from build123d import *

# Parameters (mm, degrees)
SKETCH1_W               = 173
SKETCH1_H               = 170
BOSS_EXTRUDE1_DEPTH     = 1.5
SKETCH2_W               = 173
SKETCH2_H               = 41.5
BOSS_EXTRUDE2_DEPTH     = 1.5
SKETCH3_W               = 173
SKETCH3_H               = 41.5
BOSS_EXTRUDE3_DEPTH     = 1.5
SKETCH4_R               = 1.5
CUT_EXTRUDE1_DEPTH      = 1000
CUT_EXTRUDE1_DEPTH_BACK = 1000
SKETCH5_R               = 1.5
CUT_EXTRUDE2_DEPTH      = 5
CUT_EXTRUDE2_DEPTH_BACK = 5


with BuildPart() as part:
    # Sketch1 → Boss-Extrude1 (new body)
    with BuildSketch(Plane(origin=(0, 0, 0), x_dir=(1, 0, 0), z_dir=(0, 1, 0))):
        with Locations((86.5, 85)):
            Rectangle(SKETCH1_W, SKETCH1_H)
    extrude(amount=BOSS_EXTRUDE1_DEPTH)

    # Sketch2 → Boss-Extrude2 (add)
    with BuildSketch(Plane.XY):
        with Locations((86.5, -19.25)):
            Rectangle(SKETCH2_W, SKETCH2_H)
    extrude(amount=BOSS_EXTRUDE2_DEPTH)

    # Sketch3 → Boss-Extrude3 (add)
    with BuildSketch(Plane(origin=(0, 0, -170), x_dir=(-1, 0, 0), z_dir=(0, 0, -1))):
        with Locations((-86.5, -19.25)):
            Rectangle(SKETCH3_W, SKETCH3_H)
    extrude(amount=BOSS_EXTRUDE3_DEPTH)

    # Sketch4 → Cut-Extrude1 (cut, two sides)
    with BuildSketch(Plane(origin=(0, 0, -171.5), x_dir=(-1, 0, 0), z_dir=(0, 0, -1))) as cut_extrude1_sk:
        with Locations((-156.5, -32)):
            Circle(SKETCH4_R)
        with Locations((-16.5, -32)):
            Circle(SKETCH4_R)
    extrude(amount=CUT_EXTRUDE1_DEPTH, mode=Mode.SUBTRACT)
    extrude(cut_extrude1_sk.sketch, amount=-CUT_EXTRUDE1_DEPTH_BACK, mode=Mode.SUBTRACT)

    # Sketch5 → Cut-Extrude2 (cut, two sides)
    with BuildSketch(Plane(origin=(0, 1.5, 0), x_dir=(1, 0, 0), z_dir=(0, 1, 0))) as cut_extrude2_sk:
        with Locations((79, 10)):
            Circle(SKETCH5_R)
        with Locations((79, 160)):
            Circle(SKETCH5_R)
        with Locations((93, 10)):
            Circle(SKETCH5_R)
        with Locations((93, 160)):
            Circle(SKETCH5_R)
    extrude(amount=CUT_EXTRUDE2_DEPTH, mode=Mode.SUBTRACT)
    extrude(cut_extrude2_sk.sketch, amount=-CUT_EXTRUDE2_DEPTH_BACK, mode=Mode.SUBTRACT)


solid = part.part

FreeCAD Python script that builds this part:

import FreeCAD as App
import Part
import Sketcher


def add_polygon(sketch, points):
    """Adds a closed chain of lines whose ends are joined by coincident constraints."""
    first, n = sketch.GeometryCount, len(points)
    for a, b in zip(points, points[1:] + points[:1]):
        sketch.addGeometry(Part.LineSegment(App.Vector(*a, 0), App.Vector(*b, 0)), False)
    for i in range(n):
        sketch.addConstraint(Sketcher.Constraint("Coincident", first + i, 2, first + (i + 1) % n, 1))

doc = App.newDocument("Part")
params = doc.addObject("Spreadsheet::Sheet", "Params")
for row, (alias, value) in enumerate([
    ("sketch1_width", "173 mm"),
    ("sketch1_height", "170 mm"),
    ("pad1_length", "1.5 mm"),
    ("sketch2_width", "173 mm"),
    ("sketch2_height", "41.5 mm"),
    ("pad2_length", "1.5 mm"),
    ("sketch3_width", "173 mm"),
    ("sketch3_height", "41.5 mm"),
    ("pad3_length", "1.5 mm"),
    ("sketch4_diameter", "3 mm"),
    ("sketch5_diameter", "3 mm"),
], start=1):
    params.set(f"A{row}", alias)
    params.set(f"B{row}", "=" + value)
    params.setAlias(f"B{row}", alias)

body = doc.addObject("PartDesign::Body", "Body")

sketch1 = body.newObject("Sketcher::SketchObject", "Sketch")
sketch1.AttachmentSupport = (doc.getObject("XZ_Plane"), [""])
sketch1.MapMode = "FlatFace"
add_polygon(sketch1, [(0, -170), (0, 0), (173, 0), (173, -170)])
sketch1.addConstraint([
    Sketcher.Constraint("Vertical", 0),
    Sketcher.Constraint("Horizontal", 1),
    Sketcher.Constraint("Vertical", 2),
    Sketcher.Constraint("Horizontal", 3),
    Sketcher.Constraint("Coincident", 0, 2, -1, 1),
    Sketcher.Constraint("DistanceX", 1, 1, 1, 2, 173.0),
    Sketcher.Constraint("DistanceY", 0, 1, 0, 2, 170.0),
])
sketch1.setExpression("Constraints[9]", "Params.sketch1_width")
sketch1.setExpression("Constraints[10]", "Params.sketch1_height")
pad1 = body.newObject("PartDesign::Pad", "Pad")
pad1.Profile = sketch1
pad1.setExpression("Length", "Params.pad1_length")
pad1.Reversed = True

sketch2 = body.newObject("Sketcher::SketchObject", "Sketch001")
sketch2.AttachmentSupport = (doc.getObject("XY_Plane"), [""])
sketch2.MapMode = "FlatFace"
add_polygon(sketch2, [(0, 1.5), (0, -40), (173, -40), (173, 1.5)])
sketch2.addConstraint([
    Sketcher.Constraint("Vertical", 0),
    Sketcher.Constraint("Horizontal", 1),
    Sketcher.Constraint("Vertical", 2),
    Sketcher.Constraint("Horizontal", 3),
    Sketcher.Constraint("PointOnObject", 0, 2, -2),
    Sketcher.Constraint("DistanceX", 1, 1, 1, 2, 173.0),
    Sketcher.Constraint("DistanceY", 0, 2, 0, 1, 41.5),
    Sketcher.Constraint("DistanceY", 0, 2, -1, 1, 40.0),
])
sketch2.setExpression("Constraints[9]", "Params.sketch2_width")
sketch2.setExpression("Constraints[10]", "Params.sketch2_height")
pad2 = body.newObject("PartDesign::Pad", "Pad001")
pad2.Profile = sketch2
pad2.setExpression("Length", "Params.pad2_length")

sketch3 = body.newObject("Sketcher::SketchObject", "Sketch002")
sketch3.AttachmentSupport = (doc.getObject("XY_Plane"), [""])
sketch3.MapMode = "FlatFace"
sketch3.AttachmentOffset = App.Placement(App.Vector(0, 0, -170), App.Rotation())
add_polygon(sketch3, [(173, 1.5), (173, -40), (0, -40), (0, 1.5)])
sketch3.addConstraint([
    Sketcher.Constraint("Vertical", 0),
    Sketcher.Constraint("Horizontal", 1),
    Sketcher.Constraint("Vertical", 2),
    Sketcher.Constraint("Horizontal", 3),
    Sketcher.Constraint("PointOnObject", 1, 2, -2),
    Sketcher.Constraint("DistanceX", 1, 2, 1, 1, 173.0),
    Sketcher.Constraint("DistanceY", 0, 2, 0, 1, 41.5),
    Sketcher.Constraint("DistanceY", 0, 2, -1, 1, 40.0),
])
sketch3.setExpression("Constraints[9]", "Params.sketch3_width")
sketch3.setExpression("Constraints[10]", "Params.sketch3_height")
pad3 = body.newObject("PartDesign::Pad", "Pad002")
pad3.Profile = sketch3
pad3.setExpression("Length", "Params.pad3_length")
pad3.Reversed = True

sketch4 = body.newObject("Sketcher::SketchObject", "Sketch003")
sketch4.AttachmentSupport = (doc.getObject("XY_Plane"), [""])
sketch4.MapMode = "FlatFace"
sketch4.AttachmentOffset = App.Placement(App.Vector(0, 0, -171.5), App.Rotation())
sketch4.addGeometry([
    Part.Circle(App.Vector(156.5, -32, 0), App.Vector(0, 0, 1), 1.5),
    Part.Circle(App.Vector(16.5, -32, 0), App.Vector(0, 0, 1), 1.5),
], False)
sketch4.addConstraint([
    Sketcher.Constraint("Equal", 0, 1),
    Sketcher.Constraint("Horizontal", 0, 3, 1, 3),
    Sketcher.Constraint("Diameter", 0, 3.0),
    Sketcher.Constraint("DistanceY", 0, 3, -1, 1, 32.0),
    Sketcher.Constraint("DistanceX", 1, 3, 0, 3, 140.0),
    Sketcher.Constraint("DistanceX", -1, 1, 0, 3, 156.5),
])
sketch4.setExpression("Constraints[2]", "Params.sketch4_diameter")
pocket1 = body.newObject("PartDesign::Pocket", "Pocket")
pocket1.Profile = sketch4
pocket1.Type = "ThroughAll"
pocket1.Midplane = True

sketch5 = body.newObject("Sketcher::SketchObject", "Sketch004")
sketch5.AttachmentSupport = (doc.getObject("XZ_Plane"), [""])
sketch5.MapMode = "FlatFace"
sketch5.AttachmentOffset = App.Placement(App.Vector(0, 0, -1.5), App.Rotation())
sketch5.addGeometry([
    Part.Circle(App.Vector(79, -10, 0), App.Vector(0, 0, 1), 1.5),
    Part.Circle(App.Vector(79, -160, 0), App.Vector(0, 0, 1), 1.5),
    Part.Circle(App.Vector(93, -10, 0), App.Vector(0, 0, 1), 1.5),
    Part.Circle(App.Vector(93, -160, 0), App.Vector(0, 0, 1), 1.5),
], False)
sketch5.addConstraint([
    Sketcher.Constraint("Equal", 0, 1),
    Sketcher.Constraint("Equal", 1, 2),
    Sketcher.Constraint("Equal", 2, 3),
    Sketcher.Constraint("Horizontal", 0, 3, 2, 3),
    Sketcher.Constraint("Horizontal", 1, 3, 3, 3),
    Sketcher.Constraint("Vertical", 0, 3, 1, 3),
    Sketcher.Constraint("Vertical", 2, 3, 3, 3),
    Sketcher.Constraint("Diameter", 0, 3.0),
    Sketcher.Constraint("DistanceX", -1, 1, 0, 3, 79.0),
    Sketcher.Constraint("DistanceY", 0, 3, -1, 1, 10.0),
    Sketcher.Constraint("DistanceY", 1, 3, -1, 1, 160.0),
    Sketcher.Constraint("DistanceX", -1, 1, 2, 3, 93.0),
])
sketch5.setExpression("Constraints[7]", "Params.sketch5_diameter")
pocket2 = body.newObject("PartDesign::Pocket", "Pocket001")
pocket2.Profile = sketch5
pocket2.Type = "ThroughAll"
pocket2.Midplane = True

doc.recompute()
